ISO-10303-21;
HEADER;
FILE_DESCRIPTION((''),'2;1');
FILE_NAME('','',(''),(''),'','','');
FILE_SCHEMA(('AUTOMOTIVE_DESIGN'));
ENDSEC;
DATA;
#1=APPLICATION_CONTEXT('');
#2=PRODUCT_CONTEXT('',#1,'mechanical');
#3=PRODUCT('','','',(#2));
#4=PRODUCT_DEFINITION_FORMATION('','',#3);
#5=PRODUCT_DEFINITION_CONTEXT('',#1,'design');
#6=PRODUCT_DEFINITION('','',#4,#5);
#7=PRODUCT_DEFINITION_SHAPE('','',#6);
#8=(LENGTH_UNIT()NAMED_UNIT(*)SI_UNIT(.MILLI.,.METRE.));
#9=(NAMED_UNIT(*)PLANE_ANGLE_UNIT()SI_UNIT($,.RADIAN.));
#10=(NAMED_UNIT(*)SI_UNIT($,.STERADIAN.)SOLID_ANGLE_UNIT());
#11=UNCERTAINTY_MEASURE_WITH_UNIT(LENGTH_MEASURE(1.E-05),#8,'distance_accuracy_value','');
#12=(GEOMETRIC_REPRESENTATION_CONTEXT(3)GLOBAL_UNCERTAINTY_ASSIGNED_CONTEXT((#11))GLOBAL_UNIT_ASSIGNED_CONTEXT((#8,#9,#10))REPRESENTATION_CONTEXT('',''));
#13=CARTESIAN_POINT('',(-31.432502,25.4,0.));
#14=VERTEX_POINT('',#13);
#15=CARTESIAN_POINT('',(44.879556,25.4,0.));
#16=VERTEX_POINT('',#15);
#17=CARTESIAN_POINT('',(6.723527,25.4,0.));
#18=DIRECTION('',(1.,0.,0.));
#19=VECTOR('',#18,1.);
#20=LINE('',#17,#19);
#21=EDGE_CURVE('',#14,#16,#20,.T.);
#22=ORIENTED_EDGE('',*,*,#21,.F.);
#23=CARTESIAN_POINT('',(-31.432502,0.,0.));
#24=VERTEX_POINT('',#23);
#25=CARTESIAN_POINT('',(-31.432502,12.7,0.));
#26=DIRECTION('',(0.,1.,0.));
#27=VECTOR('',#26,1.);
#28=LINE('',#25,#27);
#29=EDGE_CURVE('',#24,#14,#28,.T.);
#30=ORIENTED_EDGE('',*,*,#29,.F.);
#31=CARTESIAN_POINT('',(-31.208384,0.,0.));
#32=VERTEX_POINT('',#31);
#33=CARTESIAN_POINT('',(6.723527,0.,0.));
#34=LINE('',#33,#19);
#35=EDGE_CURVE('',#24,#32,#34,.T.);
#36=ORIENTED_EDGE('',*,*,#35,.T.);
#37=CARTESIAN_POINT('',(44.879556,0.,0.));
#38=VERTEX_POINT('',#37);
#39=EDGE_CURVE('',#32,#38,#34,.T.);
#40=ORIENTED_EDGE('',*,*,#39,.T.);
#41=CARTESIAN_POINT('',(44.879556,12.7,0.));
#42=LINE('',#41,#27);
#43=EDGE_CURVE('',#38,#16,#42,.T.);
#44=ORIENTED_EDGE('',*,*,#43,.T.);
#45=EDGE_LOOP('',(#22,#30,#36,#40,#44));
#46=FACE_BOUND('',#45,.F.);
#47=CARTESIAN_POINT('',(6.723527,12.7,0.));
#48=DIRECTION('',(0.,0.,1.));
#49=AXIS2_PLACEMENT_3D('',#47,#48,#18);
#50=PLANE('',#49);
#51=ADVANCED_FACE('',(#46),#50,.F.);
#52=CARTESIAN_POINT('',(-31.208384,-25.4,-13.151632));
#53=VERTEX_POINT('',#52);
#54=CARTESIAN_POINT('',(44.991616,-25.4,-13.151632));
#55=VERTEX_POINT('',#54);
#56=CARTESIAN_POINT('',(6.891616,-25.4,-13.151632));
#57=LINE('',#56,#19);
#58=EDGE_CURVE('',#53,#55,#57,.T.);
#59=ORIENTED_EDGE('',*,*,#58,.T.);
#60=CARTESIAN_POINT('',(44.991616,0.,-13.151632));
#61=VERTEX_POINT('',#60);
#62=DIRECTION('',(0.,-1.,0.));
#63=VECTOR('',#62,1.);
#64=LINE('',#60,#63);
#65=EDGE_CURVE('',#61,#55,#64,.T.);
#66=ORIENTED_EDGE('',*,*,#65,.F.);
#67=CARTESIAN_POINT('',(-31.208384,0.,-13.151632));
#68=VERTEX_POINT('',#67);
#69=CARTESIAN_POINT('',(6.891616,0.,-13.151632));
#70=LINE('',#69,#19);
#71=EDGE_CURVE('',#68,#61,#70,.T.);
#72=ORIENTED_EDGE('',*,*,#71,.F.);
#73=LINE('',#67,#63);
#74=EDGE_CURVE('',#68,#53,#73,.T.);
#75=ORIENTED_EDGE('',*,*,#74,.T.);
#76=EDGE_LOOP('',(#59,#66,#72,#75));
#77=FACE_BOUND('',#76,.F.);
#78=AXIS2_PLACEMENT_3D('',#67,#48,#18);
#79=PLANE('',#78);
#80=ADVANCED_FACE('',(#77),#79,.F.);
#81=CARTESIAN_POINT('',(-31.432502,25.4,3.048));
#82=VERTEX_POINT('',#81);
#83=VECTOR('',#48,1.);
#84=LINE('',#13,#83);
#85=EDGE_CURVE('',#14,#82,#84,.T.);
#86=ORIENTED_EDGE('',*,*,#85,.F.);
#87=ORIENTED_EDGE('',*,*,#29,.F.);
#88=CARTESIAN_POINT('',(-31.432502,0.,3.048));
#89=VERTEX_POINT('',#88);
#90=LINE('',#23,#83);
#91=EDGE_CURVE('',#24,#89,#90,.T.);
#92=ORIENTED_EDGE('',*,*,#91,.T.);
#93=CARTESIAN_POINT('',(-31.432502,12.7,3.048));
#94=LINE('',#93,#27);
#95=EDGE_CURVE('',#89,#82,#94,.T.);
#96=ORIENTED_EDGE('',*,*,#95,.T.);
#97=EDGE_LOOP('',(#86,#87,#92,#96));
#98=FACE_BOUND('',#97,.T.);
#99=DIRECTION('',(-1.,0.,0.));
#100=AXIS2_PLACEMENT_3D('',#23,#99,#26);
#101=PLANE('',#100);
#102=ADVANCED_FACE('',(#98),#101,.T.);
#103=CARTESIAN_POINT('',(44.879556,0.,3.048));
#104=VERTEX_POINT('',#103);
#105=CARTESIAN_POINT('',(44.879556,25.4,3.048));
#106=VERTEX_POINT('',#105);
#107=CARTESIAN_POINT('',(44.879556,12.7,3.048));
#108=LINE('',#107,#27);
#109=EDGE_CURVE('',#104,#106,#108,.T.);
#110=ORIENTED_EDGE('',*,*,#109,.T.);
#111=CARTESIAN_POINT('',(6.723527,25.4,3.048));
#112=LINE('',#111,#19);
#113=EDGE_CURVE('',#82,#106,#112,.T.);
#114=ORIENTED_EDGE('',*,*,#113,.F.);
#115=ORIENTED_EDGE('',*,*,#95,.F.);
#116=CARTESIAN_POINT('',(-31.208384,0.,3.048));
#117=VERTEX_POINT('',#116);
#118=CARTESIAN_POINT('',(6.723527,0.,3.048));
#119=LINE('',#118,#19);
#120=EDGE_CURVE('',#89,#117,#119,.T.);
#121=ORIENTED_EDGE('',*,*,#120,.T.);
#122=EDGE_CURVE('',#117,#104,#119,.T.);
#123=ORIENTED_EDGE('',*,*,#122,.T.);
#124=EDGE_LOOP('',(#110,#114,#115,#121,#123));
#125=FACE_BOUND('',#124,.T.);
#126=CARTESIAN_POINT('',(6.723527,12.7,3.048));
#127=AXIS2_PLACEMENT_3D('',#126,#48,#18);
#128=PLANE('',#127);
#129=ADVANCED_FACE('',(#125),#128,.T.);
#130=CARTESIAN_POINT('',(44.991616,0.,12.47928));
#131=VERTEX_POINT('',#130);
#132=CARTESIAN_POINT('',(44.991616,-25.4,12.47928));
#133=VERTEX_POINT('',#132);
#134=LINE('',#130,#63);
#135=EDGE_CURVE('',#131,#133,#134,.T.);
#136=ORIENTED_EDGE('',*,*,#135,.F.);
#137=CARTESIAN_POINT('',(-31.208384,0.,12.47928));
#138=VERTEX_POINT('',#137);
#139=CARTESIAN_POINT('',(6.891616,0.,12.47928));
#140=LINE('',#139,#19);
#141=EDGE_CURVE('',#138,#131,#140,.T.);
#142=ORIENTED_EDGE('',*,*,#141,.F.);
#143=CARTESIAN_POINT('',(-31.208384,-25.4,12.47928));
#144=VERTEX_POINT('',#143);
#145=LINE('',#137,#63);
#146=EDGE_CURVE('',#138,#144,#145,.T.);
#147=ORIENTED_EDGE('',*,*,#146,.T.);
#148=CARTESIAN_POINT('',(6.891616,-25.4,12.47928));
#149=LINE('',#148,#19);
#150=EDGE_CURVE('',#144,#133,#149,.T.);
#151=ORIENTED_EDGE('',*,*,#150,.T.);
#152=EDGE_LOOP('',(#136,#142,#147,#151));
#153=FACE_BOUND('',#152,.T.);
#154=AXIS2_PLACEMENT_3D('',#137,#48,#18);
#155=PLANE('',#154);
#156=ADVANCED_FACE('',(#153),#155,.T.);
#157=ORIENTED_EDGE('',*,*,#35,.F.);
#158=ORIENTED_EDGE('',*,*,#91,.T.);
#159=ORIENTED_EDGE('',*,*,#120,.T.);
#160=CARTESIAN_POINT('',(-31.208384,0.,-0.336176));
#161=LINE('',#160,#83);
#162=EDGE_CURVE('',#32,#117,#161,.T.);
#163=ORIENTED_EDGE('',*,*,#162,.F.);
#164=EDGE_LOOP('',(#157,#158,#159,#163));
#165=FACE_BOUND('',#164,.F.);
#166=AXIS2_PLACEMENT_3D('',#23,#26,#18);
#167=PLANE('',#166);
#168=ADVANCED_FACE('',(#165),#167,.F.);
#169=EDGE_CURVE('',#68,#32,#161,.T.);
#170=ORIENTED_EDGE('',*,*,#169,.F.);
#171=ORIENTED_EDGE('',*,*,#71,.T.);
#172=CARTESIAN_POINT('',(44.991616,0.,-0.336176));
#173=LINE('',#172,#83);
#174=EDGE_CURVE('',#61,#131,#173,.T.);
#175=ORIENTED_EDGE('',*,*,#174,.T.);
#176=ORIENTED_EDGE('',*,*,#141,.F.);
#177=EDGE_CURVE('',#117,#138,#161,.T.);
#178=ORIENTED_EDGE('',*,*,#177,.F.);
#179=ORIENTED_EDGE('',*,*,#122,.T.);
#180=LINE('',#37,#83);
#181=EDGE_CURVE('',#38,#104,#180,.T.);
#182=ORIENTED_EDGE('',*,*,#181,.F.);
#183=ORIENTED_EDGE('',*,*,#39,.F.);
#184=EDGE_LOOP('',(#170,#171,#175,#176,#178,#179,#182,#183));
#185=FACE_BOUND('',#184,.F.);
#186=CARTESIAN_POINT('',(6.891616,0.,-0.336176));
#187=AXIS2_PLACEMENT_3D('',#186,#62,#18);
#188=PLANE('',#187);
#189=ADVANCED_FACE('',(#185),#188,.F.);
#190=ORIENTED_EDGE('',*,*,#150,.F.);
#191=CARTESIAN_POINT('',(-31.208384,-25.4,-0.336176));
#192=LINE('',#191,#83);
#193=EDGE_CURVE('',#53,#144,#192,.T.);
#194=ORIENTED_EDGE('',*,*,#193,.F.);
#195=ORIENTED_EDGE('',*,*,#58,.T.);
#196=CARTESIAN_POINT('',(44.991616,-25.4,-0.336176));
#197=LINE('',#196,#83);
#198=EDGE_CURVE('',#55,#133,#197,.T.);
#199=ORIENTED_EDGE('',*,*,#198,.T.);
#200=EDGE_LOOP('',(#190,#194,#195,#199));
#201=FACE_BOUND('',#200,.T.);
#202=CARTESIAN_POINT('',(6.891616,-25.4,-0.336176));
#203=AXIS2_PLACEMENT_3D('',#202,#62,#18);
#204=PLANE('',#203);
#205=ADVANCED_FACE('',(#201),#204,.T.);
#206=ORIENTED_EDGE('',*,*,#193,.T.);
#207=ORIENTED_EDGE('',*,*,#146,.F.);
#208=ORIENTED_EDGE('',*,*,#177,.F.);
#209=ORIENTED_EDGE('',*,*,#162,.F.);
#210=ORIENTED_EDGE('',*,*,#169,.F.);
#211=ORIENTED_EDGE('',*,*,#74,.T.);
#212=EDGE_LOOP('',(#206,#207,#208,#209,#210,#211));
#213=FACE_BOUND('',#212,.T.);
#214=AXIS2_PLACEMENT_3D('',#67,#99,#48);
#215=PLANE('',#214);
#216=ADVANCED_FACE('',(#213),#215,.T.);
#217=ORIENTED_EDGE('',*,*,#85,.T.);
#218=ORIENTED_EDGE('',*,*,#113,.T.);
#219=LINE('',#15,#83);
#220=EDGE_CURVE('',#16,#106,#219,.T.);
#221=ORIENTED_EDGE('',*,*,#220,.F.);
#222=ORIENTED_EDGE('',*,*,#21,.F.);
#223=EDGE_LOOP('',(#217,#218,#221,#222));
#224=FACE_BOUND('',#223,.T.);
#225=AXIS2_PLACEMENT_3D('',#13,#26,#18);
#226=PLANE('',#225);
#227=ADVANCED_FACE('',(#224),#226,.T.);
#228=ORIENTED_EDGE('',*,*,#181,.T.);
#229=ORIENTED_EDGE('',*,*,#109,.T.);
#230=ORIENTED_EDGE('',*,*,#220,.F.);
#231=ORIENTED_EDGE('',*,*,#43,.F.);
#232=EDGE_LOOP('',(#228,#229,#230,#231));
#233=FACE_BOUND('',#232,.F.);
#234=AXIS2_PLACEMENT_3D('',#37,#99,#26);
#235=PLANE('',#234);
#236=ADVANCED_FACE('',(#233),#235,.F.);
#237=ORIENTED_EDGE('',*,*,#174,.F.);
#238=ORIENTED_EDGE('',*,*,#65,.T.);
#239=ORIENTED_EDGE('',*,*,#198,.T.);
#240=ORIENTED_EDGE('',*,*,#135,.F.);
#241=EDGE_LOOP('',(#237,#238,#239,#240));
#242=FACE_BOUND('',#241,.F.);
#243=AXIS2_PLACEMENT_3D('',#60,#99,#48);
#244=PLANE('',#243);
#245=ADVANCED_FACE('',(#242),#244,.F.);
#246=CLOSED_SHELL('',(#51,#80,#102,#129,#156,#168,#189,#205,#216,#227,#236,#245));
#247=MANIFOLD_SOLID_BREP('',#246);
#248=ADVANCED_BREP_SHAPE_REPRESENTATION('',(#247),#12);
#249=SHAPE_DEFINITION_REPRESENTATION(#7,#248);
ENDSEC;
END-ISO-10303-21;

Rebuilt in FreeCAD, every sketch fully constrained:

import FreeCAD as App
import Part
import Sketcher
from FreeCAD import Vector
Q = App.Units.Quantity


def add_polygon(sketch, points):
    """Adds a closed chain of lines whose ends are joined by coincident constraints."""
    first, n = sketch.GeometryCount, len(points)
    for a, b in zip(points, points[1:] + points[:1]):
        sketch.addGeometry(Part.LineSegment(App.Vector(*a, 0), App.Vector(*b, 0)), False)
    for i in range(n):
        sketch.addConstraint(Sketcher.Constraint("Coincident", first + i, 2, first + (i + 1) % n, 1))

doc = App.newDocument("Part")
body = doc.addObject("PartDesign::Body", "Body")

# Sketch on XZ plane
sketch1 = body.newObject("Sketcher::SketchObject", "Sketch")
sketch1.AttachmentSupport = (doc.getObject("XZ_Plane"), [""])
sketch1.MapMode = "FlatFace"
add_polygon(sketch1, [(-31.208384, 12.47928), (-31.208384, -13.151632), (44.991616, -13.151632), (44.991616, 12.47928)])  # lines 0-3
sketch1.addConstraint([
    Sketcher.Constraint("Vertical", 0),
    Sketcher.Constraint("Horizontal", 1),
    Sketcher.Constraint("Vertical", 2),
    Sketcher.Constraint("Horizontal", 3),
    Sketcher.Constraint("DistanceX", 1, 1, 1, 2, Q("3 in")),
    Sketcher.Constraint("DistanceY", 0, 2, 0, 1, 25.630911),
    Sketcher.Constraint("DistanceY", 0, 2, -1, 1, 13.151632),
    Sketcher.Constraint("DistanceX", 0, 2, -1, 1, 31.208384),
])
pad1 = body.newObject("PartDesign::Pad", "Pad")
pad1.Profile = sketch1
pad1.Length = Q("1 in")

# Sketch on XY plane
sketch2 = body.newObject("Sketcher::SketchObject", "Sketch001")
sketch2.AttachmentSupport = (doc.getObject("XY_Plane"), [""])
sketch2.MapMode = "FlatFace"
add_polygon(sketch2, [(-31.432502, 25.4), (-31.432502, 0), (44.879556, 0), (44.879556, 25.4)])  # lines 0-3
sketch2.addConstraint([
    Sketcher.Constraint("Vertical", 0),
    Sketcher.Constraint("Horizontal", 1),
    Sketcher.Constraint("Vertical", 2),
    Sketcher.Constraint("Horizontal", 3),
    Sketcher.Constraint("PointOnObject", 0, 2, -1),
    Sketcher.Constraint("DistanceY", 0, 2, 0, 1, Q("1 in")),
    Sketcher.Constraint("DistanceX", 0, 2, -1, 1, Q("1.2375001 in")),
    Sketcher.Constraint("DistanceX", 1, 1, 1, 2, 76.312058),
])
pad2 = body.newObject("PartDesign::Pad", "Pad001")
pad2.Profile = sketch2
pad2.Length = Q("0.12 in")

doc.recompute()
